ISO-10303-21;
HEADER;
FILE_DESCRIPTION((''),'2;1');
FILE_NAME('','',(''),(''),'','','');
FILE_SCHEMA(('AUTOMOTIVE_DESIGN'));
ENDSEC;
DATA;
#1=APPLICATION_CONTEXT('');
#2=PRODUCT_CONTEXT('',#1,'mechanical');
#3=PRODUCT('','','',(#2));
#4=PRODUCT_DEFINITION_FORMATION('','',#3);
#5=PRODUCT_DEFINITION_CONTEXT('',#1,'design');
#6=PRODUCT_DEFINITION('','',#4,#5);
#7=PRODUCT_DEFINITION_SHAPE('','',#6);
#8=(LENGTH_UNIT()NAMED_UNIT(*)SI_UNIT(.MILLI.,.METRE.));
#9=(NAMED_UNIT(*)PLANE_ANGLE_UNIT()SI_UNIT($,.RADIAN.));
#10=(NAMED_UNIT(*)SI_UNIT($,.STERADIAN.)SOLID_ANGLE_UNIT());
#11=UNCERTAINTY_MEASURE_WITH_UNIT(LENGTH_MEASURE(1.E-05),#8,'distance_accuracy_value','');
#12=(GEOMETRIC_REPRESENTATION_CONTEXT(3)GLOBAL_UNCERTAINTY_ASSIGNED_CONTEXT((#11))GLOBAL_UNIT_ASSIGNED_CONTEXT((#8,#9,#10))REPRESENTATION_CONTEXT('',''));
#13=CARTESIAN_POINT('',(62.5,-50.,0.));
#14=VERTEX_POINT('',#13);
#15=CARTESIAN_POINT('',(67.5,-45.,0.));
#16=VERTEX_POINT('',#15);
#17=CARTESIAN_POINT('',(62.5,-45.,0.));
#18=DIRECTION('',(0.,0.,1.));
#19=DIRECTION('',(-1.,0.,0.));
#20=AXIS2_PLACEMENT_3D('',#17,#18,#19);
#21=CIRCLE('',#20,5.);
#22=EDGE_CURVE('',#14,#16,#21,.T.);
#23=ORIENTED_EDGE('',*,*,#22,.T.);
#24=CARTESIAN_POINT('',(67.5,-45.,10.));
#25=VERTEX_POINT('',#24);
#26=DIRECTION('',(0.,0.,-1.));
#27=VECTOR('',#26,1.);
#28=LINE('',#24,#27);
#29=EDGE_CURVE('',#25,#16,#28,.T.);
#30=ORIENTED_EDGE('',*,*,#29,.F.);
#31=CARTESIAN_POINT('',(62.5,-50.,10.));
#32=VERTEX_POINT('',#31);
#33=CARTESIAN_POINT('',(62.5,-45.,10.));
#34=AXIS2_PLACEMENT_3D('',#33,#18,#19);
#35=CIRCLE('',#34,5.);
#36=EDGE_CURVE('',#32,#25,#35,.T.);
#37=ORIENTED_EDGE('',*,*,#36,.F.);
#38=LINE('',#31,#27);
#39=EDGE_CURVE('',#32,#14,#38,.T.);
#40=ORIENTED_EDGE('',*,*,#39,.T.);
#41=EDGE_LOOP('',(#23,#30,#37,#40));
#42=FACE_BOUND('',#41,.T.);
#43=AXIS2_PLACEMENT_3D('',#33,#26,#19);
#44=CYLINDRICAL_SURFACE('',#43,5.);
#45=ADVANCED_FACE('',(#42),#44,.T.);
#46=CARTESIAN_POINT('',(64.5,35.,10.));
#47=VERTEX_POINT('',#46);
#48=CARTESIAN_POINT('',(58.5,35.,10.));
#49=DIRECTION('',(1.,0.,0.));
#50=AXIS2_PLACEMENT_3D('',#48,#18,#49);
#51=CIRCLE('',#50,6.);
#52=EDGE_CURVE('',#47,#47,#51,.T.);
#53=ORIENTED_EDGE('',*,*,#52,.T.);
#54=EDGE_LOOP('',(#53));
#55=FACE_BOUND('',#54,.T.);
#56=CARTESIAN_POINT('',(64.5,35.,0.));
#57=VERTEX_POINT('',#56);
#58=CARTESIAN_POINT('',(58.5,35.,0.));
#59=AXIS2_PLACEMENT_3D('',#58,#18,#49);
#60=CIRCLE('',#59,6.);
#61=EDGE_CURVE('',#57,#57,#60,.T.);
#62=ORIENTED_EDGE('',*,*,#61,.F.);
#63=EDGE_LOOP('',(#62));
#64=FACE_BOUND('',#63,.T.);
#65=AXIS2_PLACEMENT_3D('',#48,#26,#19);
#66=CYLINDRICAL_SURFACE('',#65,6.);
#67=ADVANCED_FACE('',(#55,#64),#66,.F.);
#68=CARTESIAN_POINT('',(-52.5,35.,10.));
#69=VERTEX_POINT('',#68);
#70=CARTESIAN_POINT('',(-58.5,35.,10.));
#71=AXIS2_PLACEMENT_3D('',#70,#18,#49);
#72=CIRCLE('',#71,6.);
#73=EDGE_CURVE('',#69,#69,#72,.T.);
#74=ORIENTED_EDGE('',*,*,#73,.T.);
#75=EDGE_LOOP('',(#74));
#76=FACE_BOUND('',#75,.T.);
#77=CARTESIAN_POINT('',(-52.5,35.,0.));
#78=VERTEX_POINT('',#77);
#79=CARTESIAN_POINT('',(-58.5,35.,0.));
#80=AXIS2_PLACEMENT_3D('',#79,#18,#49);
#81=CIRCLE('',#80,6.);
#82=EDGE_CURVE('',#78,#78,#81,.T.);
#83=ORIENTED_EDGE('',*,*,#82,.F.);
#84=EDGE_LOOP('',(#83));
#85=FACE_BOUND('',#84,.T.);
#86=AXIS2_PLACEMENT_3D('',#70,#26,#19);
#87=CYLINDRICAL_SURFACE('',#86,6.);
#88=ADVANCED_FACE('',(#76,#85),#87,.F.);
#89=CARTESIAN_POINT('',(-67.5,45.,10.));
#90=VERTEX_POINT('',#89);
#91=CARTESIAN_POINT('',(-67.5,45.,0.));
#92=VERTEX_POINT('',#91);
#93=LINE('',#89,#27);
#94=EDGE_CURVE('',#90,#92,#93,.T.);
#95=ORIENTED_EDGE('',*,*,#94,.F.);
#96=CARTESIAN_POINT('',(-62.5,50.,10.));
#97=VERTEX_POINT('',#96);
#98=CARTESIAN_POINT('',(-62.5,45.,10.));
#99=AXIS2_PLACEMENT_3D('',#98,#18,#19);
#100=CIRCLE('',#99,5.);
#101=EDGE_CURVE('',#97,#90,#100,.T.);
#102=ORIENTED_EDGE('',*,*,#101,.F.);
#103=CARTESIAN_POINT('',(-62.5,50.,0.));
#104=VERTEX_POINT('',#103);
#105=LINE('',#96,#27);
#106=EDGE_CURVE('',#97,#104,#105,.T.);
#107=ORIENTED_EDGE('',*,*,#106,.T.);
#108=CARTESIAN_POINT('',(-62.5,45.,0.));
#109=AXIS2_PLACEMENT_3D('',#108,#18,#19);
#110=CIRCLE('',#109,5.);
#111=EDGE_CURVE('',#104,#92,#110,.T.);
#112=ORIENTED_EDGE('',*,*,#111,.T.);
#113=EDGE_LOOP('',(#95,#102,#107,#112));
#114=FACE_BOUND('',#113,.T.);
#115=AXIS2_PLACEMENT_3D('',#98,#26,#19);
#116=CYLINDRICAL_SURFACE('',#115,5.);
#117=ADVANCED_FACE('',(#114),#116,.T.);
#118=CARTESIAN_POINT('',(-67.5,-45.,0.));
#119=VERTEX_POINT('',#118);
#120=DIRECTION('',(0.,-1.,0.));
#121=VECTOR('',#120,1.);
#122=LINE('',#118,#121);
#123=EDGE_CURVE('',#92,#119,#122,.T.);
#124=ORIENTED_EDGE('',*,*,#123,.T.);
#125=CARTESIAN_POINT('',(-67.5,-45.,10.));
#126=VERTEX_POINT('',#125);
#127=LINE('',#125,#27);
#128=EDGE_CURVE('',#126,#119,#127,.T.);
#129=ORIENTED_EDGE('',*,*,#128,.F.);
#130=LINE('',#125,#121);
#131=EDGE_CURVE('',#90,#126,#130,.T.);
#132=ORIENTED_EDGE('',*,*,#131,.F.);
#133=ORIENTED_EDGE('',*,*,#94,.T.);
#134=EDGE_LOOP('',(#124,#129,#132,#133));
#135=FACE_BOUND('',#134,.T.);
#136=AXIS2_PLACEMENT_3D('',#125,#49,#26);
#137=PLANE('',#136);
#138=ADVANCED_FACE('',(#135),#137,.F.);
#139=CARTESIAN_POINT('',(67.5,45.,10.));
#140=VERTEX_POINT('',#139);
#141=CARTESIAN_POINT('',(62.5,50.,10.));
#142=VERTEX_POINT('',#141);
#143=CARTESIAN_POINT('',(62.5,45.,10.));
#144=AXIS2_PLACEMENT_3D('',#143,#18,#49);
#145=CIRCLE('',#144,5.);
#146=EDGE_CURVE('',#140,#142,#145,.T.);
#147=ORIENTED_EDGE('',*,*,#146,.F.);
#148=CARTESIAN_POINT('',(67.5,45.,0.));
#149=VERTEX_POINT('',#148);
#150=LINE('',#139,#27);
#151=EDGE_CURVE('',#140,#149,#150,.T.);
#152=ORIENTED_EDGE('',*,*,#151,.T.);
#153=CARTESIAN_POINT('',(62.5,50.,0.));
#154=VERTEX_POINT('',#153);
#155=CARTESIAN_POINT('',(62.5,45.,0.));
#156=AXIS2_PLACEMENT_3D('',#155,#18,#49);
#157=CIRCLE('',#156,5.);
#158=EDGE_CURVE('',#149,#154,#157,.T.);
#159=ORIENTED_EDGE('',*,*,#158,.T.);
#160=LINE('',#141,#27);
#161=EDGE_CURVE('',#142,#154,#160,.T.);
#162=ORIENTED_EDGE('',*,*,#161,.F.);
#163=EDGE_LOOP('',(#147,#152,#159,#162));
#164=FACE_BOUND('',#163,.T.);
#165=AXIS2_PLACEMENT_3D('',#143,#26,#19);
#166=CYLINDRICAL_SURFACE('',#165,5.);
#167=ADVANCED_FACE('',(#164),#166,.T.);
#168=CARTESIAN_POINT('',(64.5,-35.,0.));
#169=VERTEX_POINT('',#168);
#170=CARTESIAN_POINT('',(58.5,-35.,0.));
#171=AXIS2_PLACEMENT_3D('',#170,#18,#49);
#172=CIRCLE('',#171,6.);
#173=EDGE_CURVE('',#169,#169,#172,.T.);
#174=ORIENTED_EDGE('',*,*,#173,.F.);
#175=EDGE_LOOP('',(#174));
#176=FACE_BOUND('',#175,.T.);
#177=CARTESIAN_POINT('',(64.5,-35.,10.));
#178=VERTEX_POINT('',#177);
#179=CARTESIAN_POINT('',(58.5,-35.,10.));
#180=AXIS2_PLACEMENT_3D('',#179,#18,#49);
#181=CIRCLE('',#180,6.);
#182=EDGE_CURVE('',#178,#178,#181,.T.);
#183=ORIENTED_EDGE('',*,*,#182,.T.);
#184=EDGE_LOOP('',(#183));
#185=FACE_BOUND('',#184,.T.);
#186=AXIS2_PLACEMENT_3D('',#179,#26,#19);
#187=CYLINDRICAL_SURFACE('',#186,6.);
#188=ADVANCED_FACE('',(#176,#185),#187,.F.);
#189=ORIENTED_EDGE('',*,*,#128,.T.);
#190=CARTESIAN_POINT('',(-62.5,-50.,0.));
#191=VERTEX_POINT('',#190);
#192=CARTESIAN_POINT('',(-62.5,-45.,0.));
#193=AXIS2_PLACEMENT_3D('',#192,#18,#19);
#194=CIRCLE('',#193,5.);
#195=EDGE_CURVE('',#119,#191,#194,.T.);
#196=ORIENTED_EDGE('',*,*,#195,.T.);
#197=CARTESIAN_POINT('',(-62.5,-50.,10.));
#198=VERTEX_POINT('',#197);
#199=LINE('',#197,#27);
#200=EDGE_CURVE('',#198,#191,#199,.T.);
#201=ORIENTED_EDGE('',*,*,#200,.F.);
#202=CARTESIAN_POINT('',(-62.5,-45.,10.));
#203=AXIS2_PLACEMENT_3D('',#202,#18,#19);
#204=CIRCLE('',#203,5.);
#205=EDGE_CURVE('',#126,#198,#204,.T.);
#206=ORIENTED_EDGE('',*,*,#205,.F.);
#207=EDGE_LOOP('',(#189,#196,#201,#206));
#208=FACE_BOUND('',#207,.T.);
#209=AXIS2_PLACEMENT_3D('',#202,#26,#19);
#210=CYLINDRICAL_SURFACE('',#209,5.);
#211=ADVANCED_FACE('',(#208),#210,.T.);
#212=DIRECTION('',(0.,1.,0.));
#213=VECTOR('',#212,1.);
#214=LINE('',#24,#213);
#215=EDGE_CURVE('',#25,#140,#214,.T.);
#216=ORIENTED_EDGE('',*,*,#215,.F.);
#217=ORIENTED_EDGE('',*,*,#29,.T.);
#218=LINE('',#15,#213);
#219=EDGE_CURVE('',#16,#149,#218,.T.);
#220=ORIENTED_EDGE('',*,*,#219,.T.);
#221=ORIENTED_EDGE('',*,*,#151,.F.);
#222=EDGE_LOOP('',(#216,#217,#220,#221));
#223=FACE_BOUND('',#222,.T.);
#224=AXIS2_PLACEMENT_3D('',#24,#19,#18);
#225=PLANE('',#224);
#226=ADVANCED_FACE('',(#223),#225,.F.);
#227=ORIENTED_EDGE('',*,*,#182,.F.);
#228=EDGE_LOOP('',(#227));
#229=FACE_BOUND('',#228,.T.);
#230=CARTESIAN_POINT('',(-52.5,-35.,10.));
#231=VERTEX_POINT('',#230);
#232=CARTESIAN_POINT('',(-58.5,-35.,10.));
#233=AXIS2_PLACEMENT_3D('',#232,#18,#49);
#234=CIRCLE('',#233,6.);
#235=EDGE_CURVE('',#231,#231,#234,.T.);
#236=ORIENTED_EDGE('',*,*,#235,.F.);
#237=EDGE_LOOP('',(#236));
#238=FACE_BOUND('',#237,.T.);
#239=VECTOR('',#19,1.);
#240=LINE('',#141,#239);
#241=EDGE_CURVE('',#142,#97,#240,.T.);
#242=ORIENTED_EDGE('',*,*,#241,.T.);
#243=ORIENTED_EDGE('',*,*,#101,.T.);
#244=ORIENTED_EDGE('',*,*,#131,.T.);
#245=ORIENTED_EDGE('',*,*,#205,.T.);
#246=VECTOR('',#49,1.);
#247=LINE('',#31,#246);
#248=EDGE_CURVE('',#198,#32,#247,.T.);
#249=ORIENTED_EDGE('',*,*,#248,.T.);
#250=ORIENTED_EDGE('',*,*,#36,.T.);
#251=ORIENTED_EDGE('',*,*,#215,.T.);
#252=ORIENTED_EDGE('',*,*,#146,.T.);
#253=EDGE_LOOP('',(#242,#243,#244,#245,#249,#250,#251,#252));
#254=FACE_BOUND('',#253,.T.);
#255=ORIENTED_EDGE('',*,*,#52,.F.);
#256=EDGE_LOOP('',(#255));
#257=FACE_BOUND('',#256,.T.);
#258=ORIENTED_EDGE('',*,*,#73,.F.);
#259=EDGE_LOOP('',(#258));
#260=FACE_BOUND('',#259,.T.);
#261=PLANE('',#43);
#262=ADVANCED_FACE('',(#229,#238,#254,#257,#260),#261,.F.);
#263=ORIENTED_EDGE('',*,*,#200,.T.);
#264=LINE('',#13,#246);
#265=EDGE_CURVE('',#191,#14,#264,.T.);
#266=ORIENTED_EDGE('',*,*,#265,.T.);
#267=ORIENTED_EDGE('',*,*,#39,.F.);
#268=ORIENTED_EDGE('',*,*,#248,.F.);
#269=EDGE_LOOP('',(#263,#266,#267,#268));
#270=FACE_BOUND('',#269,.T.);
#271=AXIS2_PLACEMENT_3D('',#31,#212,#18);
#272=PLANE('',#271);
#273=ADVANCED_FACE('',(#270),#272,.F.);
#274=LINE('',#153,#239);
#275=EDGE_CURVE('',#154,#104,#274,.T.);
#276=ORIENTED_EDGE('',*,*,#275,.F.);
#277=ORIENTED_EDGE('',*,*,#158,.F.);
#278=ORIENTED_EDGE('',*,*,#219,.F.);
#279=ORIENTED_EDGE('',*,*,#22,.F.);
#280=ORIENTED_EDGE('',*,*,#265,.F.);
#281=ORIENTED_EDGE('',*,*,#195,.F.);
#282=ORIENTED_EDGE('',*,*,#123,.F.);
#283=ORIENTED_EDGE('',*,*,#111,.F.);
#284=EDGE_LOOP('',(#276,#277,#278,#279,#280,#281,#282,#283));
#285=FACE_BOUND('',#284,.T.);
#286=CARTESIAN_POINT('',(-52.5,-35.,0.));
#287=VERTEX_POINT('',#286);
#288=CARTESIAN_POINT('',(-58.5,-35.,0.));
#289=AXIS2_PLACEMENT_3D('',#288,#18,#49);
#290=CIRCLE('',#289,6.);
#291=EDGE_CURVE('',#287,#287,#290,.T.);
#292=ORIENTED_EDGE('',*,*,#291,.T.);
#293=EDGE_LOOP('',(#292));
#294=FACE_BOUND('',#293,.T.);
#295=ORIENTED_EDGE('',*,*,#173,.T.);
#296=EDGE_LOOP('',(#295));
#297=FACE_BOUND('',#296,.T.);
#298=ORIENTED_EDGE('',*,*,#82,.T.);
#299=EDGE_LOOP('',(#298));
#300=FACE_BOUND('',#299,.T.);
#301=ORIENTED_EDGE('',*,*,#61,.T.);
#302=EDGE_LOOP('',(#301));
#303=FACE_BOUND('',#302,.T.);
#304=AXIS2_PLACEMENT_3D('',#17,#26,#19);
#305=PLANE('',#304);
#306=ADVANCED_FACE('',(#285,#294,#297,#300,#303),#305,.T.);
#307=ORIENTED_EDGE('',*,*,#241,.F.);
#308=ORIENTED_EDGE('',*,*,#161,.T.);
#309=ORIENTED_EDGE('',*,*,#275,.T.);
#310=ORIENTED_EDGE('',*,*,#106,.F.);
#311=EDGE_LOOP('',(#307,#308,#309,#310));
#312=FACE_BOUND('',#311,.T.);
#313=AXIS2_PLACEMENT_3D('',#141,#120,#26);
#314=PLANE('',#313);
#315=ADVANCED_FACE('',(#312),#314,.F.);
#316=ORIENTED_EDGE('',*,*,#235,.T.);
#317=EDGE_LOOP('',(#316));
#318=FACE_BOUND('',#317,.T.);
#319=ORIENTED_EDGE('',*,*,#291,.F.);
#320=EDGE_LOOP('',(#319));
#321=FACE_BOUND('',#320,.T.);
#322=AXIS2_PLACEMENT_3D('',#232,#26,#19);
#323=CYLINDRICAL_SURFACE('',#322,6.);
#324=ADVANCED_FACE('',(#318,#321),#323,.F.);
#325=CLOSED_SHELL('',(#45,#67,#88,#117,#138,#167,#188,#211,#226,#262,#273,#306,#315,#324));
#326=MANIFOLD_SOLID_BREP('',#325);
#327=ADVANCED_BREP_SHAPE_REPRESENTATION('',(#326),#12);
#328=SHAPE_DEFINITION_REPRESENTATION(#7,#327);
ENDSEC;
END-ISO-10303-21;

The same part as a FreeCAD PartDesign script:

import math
import FreeCAD as App
import Part
import Sketcher

doc = App.newDocument("Part")
body = doc.addObject("PartDesign::Body", "Body")

sketch1 = body.newObject("Sketcher::SketchObject", "Sketch")
sketch1.AttachmentSupport = (doc.getObject("XY_Plane"), [""])
sketch1.MapMode = "FlatFace"
sketch1.addGeometry([
    Part.LineSegment(App.Vector(68, -45, 0), App.Vector(68, 45, 0)),
    Part.ArcOfCircle(Part.Circle(App.Vector(62, 45, 0), App.Vector(0, 0, 1), 5), math.radians(0), math.radians(90)),
    Part.LineSegment(App.Vector(62, 50, 0), App.Vector(-62, 50, 0)),
    Part.ArcOfCircle(Part.Circle(App.Vector(-62, 45, 0), App.Vector(0, 0, 1), 5), math.radians(90), math.radians(180)),
    Part.LineSegment(App.Vector(-68, 45, 0), App.Vector(-68, -45, 0)),
    Part.ArcOfCircle(Part.Circle(App.Vector(-62, -45, 0), App.Vector(0, 0, 1), 5), math.radians(180), math.radians(270)),
    Part.LineSegment(App.Vector(-62, -50, 0), App.Vector(62, -50, 0)),
    Part.ArcOfCircle(Part.Circle(App.Vector(62, -45, 0), App.Vector(0, 0, 1), 5), math.radians(-90), math.radians(0)),
    Part.Circle(App.Vector(58, -35, 0), App.Vector(0, 0, 1), 6),
    Part.Circle(App.Vector(58, 35, 0), App.Vector(0, 0, 1), 6),
    Part.Circle(App.Vector(-58, -35, 0), App.Vector(0, 0, 1), 6),
    Part.Circle(App.Vector(-58, 35, 0), App.Vector(0, 0, 1), 6),
], False)
sketch1.addConstraint([
    Sketcher.Constraint("Tangent", 0, 2, 1, 1),
    Sketcher.Constraint("Tangent", 1, 2, 2, 1),
    Sketcher.Constraint("Tangent", 2, 2, 3, 1),
    Sketcher.Constraint("Tangent", 3, 2, 4, 1),
    Sketcher.Constraint("Tangent", 4, 2, 5, 1),
    Sketcher.Constraint("Tangent", 5, 2, 6, 1),
    Sketcher.Constraint("Tangent", 6, 2, 7, 1),
    Sketcher.Constraint("Tangent", 7, 2, 0, 1),
    Sketcher.Constraint("Vertical", 0),
    Sketcher.Constraint("Horizontal", 2),
    Sketcher.Constraint("Vertical", 4),
    Sketcher.Constraint("Horizontal", 6),
    Sketcher.Constraint("Equal", 1, 3),
    Sketcher.Constraint("Equal", 3, 5),
    Sketcher.Constraint("Equal", 5, 7),
    Sketcher.Constraint("Equal", 8, 9),
    Sketcher.Constraint("Equal", 9, 10),
    Sketcher.Constraint("Equal", 10, 11),
    Sketcher.Constraint("Symmetric", 1, 3, 5, 3, -1, 1),
    Sketcher.Constraint("Symmetric", 9, 3, 10, 3, -1, 1),
    Sketcher.Constraint("Symmetric", 8, 3, 11, 3, -1, 1),
    Sketcher.Constraint("Symmetric", 8, 3, 10, 3, -2),
    Sketcher.Constraint("Diameter", 8, 12.0),
    Sketcher.Constraint("Radius", 1, 5.0),
    Sketcher.Constraint("DistanceX", 2, 2, 2, 1, 125.0),
    Sketcher.Constraint("DistanceY", 0, 1, 0, 2, 90.0),
    Sketcher.Constraint("DistanceY", 8, 3, -1, 1, 35.0),
    Sketcher.Constraint("DistanceX", 8, 3, 7, 3, 4.0),
])
pad1 = body.newObject("PartDesign::Pad", "Pad")
pad1.Profile = sketch1
pad1.Length = 10

doc.recompute()
